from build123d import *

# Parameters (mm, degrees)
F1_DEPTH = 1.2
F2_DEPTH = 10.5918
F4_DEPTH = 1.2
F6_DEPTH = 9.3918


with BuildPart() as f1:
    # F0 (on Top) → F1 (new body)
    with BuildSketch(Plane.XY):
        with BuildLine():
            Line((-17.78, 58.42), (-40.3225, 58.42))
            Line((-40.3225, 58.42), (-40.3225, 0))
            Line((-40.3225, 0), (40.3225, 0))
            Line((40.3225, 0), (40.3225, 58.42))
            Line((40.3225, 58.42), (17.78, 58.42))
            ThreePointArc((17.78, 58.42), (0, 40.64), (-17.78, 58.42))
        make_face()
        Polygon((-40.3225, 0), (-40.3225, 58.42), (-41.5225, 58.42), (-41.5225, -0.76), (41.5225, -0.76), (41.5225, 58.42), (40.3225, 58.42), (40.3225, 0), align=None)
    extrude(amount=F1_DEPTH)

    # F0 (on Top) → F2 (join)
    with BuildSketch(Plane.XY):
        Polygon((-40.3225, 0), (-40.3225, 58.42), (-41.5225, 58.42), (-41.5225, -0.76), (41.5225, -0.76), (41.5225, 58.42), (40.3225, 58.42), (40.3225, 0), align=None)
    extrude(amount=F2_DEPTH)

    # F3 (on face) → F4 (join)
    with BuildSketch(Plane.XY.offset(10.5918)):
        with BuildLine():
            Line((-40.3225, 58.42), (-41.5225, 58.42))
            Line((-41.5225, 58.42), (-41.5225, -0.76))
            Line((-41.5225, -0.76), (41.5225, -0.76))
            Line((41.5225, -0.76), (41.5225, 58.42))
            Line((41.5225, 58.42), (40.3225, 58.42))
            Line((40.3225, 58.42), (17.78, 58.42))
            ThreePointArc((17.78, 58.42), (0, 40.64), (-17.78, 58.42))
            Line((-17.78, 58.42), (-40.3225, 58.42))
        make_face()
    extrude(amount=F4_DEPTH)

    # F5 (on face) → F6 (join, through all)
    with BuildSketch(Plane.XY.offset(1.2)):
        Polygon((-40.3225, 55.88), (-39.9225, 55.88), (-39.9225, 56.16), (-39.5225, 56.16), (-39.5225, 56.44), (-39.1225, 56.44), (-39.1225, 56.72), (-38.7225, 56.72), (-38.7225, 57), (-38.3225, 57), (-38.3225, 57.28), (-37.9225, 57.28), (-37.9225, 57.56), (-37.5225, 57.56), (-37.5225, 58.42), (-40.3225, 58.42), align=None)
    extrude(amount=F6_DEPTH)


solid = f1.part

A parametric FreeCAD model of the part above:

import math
import FreeCAD as App
import Part
import Sketcher
from FreeCAD import Vector
Q = App.Units.Quantity


def add_polygon(sketch, points):
    """Adds a closed chain of lines whose ends are joined by coincident constraints."""
    first, n = sketch.GeometryCount, len(points)
    for a, b in zip(points, points[1:] + points[:1]):
        sketch.addGeometry(Part.LineSegment(App.Vector(*a, 0), App.Vector(*b, 0)), False)
    for i in range(n):
        sketch.addConstraint(Sketcher.Constraint("Coincident", first + i, 2, first + (i + 1) % n, 1))

doc = App.newDocument("Part")
body = doc.addObject("PartDesign::Body", "Body")

# Sketch on XY plane
sketch1 = body.newObject("Sketcher::SketchObject", "Sketch")
sketch1.AttachmentSupport = (doc.getObject("XY_Plane"), [""])
sketch1.MapMode = "FlatFace"
sketch1.addGeometry(Part.LineSegment(Vector(-18, 58, 0), Vector(-42, 58, 0)), False)
sketch1.addGeometry(Part.LineSegment(Vector(-42, 58, 0), Vector(-42, -1, 0)), False)
sketch1.addGeometry(Part.LineSegment(Vector(-42, -1, 0), Vector(42, -1, 0)), False)
sketch1.addGeometry(Part.LineSegment(Vector(42, -1, 0), Vector(42, 58, 0)), False)
sketch1.addGeometry(Part.LineSegment(Vector(42, 58, 0), Vector(18, 58, 0)), False)
sketch1.addGeometry(Part.ArcOfCircle(Part.Circle(Vector(0, 58, 0), Vector(0, 0, 1), 18), math.radians(180), math.radians(360)), False)
sketch1.addConstraint(Sketcher.Constraint("Coincident", 0, 2, 1, 1))
sketch1.addConstraint(Sketcher.Constraint("Coincident", 1, 2, 2, 1))
sketch1.addConstraint(Sketcher.Constraint("Coincident", 2, 2, 3, 1))
sketch1.addConstraint(Sketcher.Constraint("Coincident", 3, 2, 4, 1))
sketch1.addConstraint(Sketcher.Constraint("Coincident", 4, 2, 5, 2))
sketch1.addConstraint(Sketcher.Constraint("Coincident", 5, 1, 0, 1))
sketch1.addConstraint(Sketcher.Constraint("Horizontal", 0))
sketch1.addConstraint(Sketcher.Constraint("Vertical", 1))
sketch1.addConstraint(Sketcher.Constraint("Horizontal", 2))
sketch1.addConstraint(Sketcher.Constraint("Vertical", 3))
sketch1.addConstraint(Sketcher.Constraint("Horizontal", 4))
sketch1.addConstraint(Sketcher.Constraint("Symmetric", 0, 2, 3, 2, -2))
sketch1.addConstraint(Sketcher.Constraint("PointOnObject", 5, 3, -2))
sketch1.addConstraint(Sketcher.Constraint("Horizontal", 5, 3, 0, 2))
sketch1.addConstraint(Sketcher.Constraint("Radius", 5, Q("0.7 in")))
sketch1.addConstraint(Sketcher.Constraint("DistanceY", -1, 1, 5, 3, Q("2.3 in")))
sketch1.addConstraint(Sketcher.Constraint("DistanceX", 0, 2, 0, 1, Q("23.7425 mm")))
sketch1.addConstraint(Sketcher.Constraint("DistanceY", 1, 2, 1, 1, Q("59.18 mm")))
pad1 = body.newObject("PartDesign::Pad", "Pad")
pad1.Profile = sketch1
pad1.Length = 1.2

# Sketch on XY plane
sketch2 = body.newObject("Sketcher::SketchObject", "Sketch001")
sketch2.AttachmentSupport = (doc.getObject("XY_Plane"), [""])
sketch2.MapMode = "FlatFace"
add_polygon(sketch2, [(-40.3, 0), (-40.3, 58.4), (-41.5, 58.4), (-41.5, -0.8), (41.5, -0.8), (41.5, 58.4), (40.3, 58.4), (40.3, 0)])  # lines 0-7
sketch2.addConstraint(Sketcher.Constraint("Vertical", 0))
sketch2.addConstraint(Sketcher.Constraint("Horizontal", 1))
sketch2.addConstraint(Sketcher.Constraint("Vertical", 2))
sketch2.addConstraint(Sketcher.Constraint("Horizontal", 3))
sketch2.addConstraint(Sketcher.Constraint("Vertical", 4))
sketch2.addConstraint(Sketcher.Constraint("Horizontal", 5))
sketch2.addConstraint(Sketcher.Constraint("Vertical", 6))
sketch2.addConstraint(Sketcher.Constraint("Horizontal", 7))
sketch2.addConstraint(Sketcher.Constraint("Symmetric", 6, 2, 7, 2, -1, 1))
sketch2.addConstraint(Sketcher.Constraint("Symmetric", 1, 2, 4, 2, -2))
sketch2.addConstraint(Sketcher.Constraint("DistanceY", 0, 1, 0, 2, Q("2.3 in")))
sketch2.addConstraint(Sketcher.Constraint("DistanceX", 7, 2, 7, 1, Q("3.175 in")))
sketch2.addConstraint(Sketcher.Constraint("DistanceX", 1, 2, 1, 1, Q("1.2 mm")))
sketch2.addConstraint(Sketcher.Constraint("DistanceY", 2, 2, 2, 1, Q("59.18 mm")))
pad2 = body.newObject("PartDesign::Pad", "Pad001")
pad2.Profile = sketch2
pad2.Length = Q("0.417 in")

# Sketch on XY plane
sketch3 = body.newObject("Sketcher::SketchObject", "Sketch002")
sketch3.AttachmentSupport = (doc.getObject("XY_Plane"), [""])
sketch3.MapMode = "FlatFace"
sketch3.AttachmentOffset = App.Placement(Vector(0, 0, 0.417 * 25.4), App.Rotation())
sketch3.addGeometry(Part.LineSegment(Vector(-42, 58, 0), Vector(-42, -1, 0)), False)
sketch3.addGeometry(Part.LineSegment(Vector(-42, -1, 0), Vector(42, -1, 0)), False)
sketch3.addGeometry(Part.LineSegment(Vector(42, -1, 0), Vector(42, 58, 0)), False)
sketch3.addGeometry(Part.LineSegment(Vector(42, 58, 0), Vector(18, 58, 0)), False)
sketch3.addGeometry(Part.ArcOfCircle(Part.Circle(Vector(0, 58, 0), Vector(0, 0, 1), 18), math.radians(180), math.radians(360)), False)
sketch3.addGeometry(Part.LineSegment(Vector(-18, 58, 0), Vector(-42, 58, 0)), False)
sketch3.addConstraint(Sketcher.Constraint("Coincident", 0, 2, 1, 1))
sketch3.addConstraint(Sketcher.Constraint("Coincident", 1, 2, 2, 1))
sketch3.addConstraint(Sketcher.Constraint("Coincident", 2, 2, 3, 1))
sketch3.addConstraint(Sketcher.Constraint("Coincident", 3, 2, 4, 2))
sketch3.addConstraint(Sketcher.Constraint("Coincident", 4, 1, 5, 1))
sketch3.addConstraint(Sketcher.Constraint("Coincident", 5, 2, 0, 1))
sketch3.addConstraint(Sketcher.Constraint("Vertical", 0))
sketch3.addConstraint(Sketcher.Constraint("Horizontal", 1))
sketch3.addConstraint(Sketcher.Constraint("Vertical", 2))
sketch3.addConstraint(Sketcher.Constraint("Horizontal", 3))
sketch3.addConstraint(Sketcher.Constraint("Horizontal", 5))
sketch3.addConstraint(Sketcher.Constraint("Symmetric", 3, 2, 4, 1, -2))
sketch3.addConstraint(Sketcher.Constraint("Horizontal", 4, 3, 2, 2))
sketch3.addConstraint(Sketcher.Constraint("Equal", 3, 5))
sketch3.addConstraint(Sketcher.Constraint("Radius", 4, Q("0.7 in")))
sketch3.addConstraint(Sketcher.Constraint("DistanceY", -1, 1, 4, 3, Q("2.3 in")))
sketch3.addConstraint(Sketcher.Constraint("DistanceX", 1, 1, 1, 2, Q("83.045 mm")))
sketch3.addConstraint(Sketcher.Constraint("DistanceY", 0, 2, 0, 1, Q("59.18 mm")))
pad3 = body.newObject("PartDesign::Pad", "Pad002")
pad3.Profile = sketch3
pad3.Length = 1.2

# Sketch on XY plane
sketch4 = body.newObject("Sketcher::SketchObject", "Sketch003")
sketch4.AttachmentSupport = (doc.getObject("XY_Plane"), [""])
sketch4.MapMode = "FlatFace"
sketch4.AttachmentOffset = App.Placement(Vector(0, 0, 1.2), App.Rotation())
add_polygon(sketch4, [(-40.32, 55.88), (-39.92, 55.88), (-39.92, 56.16), (-39.52, 56.16), (-39.52, 56.44), (-39.12, 56.44), (-39.12, 56.72), (-38.72, 56.72), (-38.72, 57), (-38.32, 57), (-38.32, 57.28), (-37.92, 57.28), (-37.92, 57.56), (-37.52, 57.56), (-37.52, 58.42), (-40.32, 58.42)])  # lines 0-15
sketch4.addConstraint(Sketcher.Constraint("Horizontal", 0))
sketch4.addConstraint(Sketcher.Constraint("Vertical", 1))
sketch4.addConstraint(Sketcher.Constraint("Horizontal", 2))
sketch4.addConstraint(Sketcher.Constraint("Vertical", 3))
sketch4.addConstraint(Sketcher.Constraint("Horizontal", 4))
sketch4.addConstraint(Sketcher.Constraint("Vertical", 5))
sketch4.addConstraint(Sketcher.Constraint("Horizontal", 6))
sketch4.addConstraint(Sketcher.Constraint("Vertical", 7))
sketch4.addConstraint(Sketcher.Constraint("Horizontal", 8))
sketch4.addConstraint(Sketcher.Constraint("Vertical", 9))
sketch4.addConstraint(Sketcher.Constraint("Horizontal", 10))
sketch4.addConstraint(Sketcher.Constraint("Vertical", 11))
sketch4.addConstraint(Sketcher.Constraint("Horizontal", 12))
sketch4.addConstraint(Sketcher.Constraint("Vertical", 13))
sketch4.addConstraint(Sketcher.Constraint("Horizontal", 14))
sketch4.addConstraint(Sketcher.Constraint("Vertical", 15))
sketch4.addConstraint(Sketcher.Constraint("Equal", 0, 2))
sketch4.addConstraint(Sketcher.Constraint("Equal", 2, 4))
sketch4.addConstraint(Sketcher.Constraint("Equal", 4, 6))
sketch4.addConstraint(Sketcher.Constraint("Equal", 6, 8))
sketch4.addConstraint(Sketcher.Constraint("Equal", 8, 10))
sketch4.addConstraint(Sketcher.Constraint("Equal", 10, 12))
sketch4.addConstraint(Sketcher.Constraint("Equal", 1, 3))
sketch4.addConstraint(Sketcher.Constraint("Equal", 3, 5))
sketch4.addConstraint(Sketcher.Constraint("Equal", 5, 7))
sketch4.addConstraint(Sketcher.Constraint("Equal", 7, 9))
sketch4.addConstraint(Sketcher.Constraint("Equal", 9, 11))
sketch4.addConstraint(Sketcher.Constraint("DistanceY", 15, 2, 15, 1, Q("0.1 in")))
sketch4.addConstraint(Sketcher.Constraint("DistanceY", -1, 1, 0, 2, Q("2.2 in")))
sketch4.addConstraint(Sketcher.Constraint("DistanceX", 0, 1, 0, 2, Q("0.4 mm")))
sketch4.addConstraint(Sketcher.Constraint("DistanceY", 1, 1, 1, 2, Q("0.28 mm")))
sketch4.addConstraint(Sketcher.Constraint("DistanceX", 14, 2, -1, 1, Q("1.5875 in")))
pad4 = body.newObject("PartDesign::Pad", "Pad003")
pad4.Profile = sketch4
pad4.Type = "UpToLast"

doc.recompute()
